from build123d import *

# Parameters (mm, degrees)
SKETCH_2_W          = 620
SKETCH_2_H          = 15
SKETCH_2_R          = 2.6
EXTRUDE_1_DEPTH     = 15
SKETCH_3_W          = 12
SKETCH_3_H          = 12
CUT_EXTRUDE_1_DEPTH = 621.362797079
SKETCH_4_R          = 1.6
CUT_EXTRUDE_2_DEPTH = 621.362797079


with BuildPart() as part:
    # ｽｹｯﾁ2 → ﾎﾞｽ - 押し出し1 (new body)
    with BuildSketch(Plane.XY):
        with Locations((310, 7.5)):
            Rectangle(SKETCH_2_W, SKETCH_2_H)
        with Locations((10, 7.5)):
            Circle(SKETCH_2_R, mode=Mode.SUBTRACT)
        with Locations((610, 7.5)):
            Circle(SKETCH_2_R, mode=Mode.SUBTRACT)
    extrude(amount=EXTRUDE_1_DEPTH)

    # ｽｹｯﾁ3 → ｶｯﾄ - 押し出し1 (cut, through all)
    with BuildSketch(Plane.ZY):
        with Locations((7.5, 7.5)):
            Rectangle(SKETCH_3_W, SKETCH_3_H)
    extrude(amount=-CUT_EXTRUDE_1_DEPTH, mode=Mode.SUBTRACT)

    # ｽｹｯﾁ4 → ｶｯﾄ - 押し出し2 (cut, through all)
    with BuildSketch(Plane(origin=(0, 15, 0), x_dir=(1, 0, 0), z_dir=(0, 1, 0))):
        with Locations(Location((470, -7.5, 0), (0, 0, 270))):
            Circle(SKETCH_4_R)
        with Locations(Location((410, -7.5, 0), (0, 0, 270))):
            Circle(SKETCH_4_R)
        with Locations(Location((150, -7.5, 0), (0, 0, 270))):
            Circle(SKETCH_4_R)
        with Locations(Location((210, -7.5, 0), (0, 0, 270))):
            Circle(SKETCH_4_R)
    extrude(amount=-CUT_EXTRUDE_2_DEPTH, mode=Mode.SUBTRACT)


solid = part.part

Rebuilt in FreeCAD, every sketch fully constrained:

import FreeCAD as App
import Part
import Sketcher

doc = App.newDocument("Part")
body = doc.addObject("PartDesign::Body", "Body")

# Sketch on XY plane
sketch1 = body.newObject("Sketcher::SketchObject", "Sketch")
sketch1.AttachmentSupport = (doc.getObject("XY_Plane"), [""])
sketch1.MapMode = "FlatFace"
sketch1.addGeometry([
    Part.LineSegment(App.Vector(0, 15, 0), App.Vector(0, 0, 0)),  # 0
    Part.LineSegment(App.Vector(0, 0, 0), App.Vector(620, 0, 0)),  # 1
    Part.LineSegment(App.Vector(620, 0, 0), App.Vector(620, 15, 0)),  # 2
    Part.LineSegment(App.Vector(620, 15, 0), App.Vector(0, 15, 0)),  # 3
    Part.Circle(App.Vector(10, 7.5, 0), App.Vector(0, 0, 1), 2.6),  # 4
    Part.Circle(App.Vector(610, 7.5, 0), App.Vector(0, 0, 1), 2.6),  # 5
], False)
sketch1.addConstraint([
    Sketcher.Constraint("Coincident", 0, 2, 1, 1),
    Sketcher.Constraint("Coincident", 1, 2, 2, 1),
    Sketcher.Constraint("Coincident", 2, 2, 3, 1),
    Sketcher.Constraint("Coincident", 3, 2, 0, 1),
    Sketcher.Constraint("Vertical", 0),
    Sketcher.Constraint("Horizontal", 1),
    Sketcher.Constraint("Vertical", 2),
    Sketcher.Constraint("Horizontal", 3),
    Sketcher.Constraint("Coincident", 0, 2, -1, 1),
    Sketcher.Constraint("Equal", 4, 5),
    Sketcher.Constraint("Horizontal", 4, 3, 5, 3),
    Sketcher.Constraint("Diameter", 4, 5.2),
    Sketcher.Constraint("DistanceX", 1, 1, 1, 2, 620.0),
    Sketcher.Constraint("DistanceY", 0, 2, 0, 1, 15.0),
    Sketcher.Constraint("DistanceX", -1, 1, 4, 3, 10.0),
    Sketcher.Constraint("DistanceX", -1, 1, 5, 3, 610.0),
    Sketcher.Constraint("DistanceY", -1, 1, 4, 3, 7.5),
])
pad1 = body.newObject("PartDesign::Pad", "Pad")
pad1.Profile = sketch1
pad1.Length = 15

# Sketch on YZ plane
sketch2 = body.newObject("Sketcher::SketchObject", "Sketch001")
sketch2.AttachmentSupport = (doc.getObject("YZ_Plane"), [""])
sketch2.MapMode = "FlatFace"
sketch2.addGeometry([
    Part.LineSegment(App.Vector(14, 2, 0), App.Vector(2, 2, 0)),
    Part.LineSegment(App.Vector(2, 2, 0), App.Vector(2, 14, 0)),
    Part.LineSegment(App.Vector(2, 14, 0), App.Vector(14, 14, 0)),
    Part.LineSegment(App.Vector(14, 14, 0), App.Vector(14, 2, 0)),
], False)
sketch2.addConstraint([
    Sketcher.Constraint("Coincident", 0, 2, 1, 1),
    Sketcher.Constraint("Coincident", 1, 2, 2, 1),
    Sketcher.Constraint("Coincident", 2, 2, 3, 1),
    Sketcher.Constraint("Coincident", 3, 2, 0, 1),
    Sketcher.Constraint("Horizontal", 0),
    Sketcher.Constraint("Vertical", 1),
    Sketcher.Constraint("Horizontal", 2),
    Sketcher.Constraint("Vertical", 3),
    Sketcher.Constraint("Equal", 2, 1),
    Sketcher.Constraint("DistanceX", 0, 2, 0, 1, 12.0),
    Sketcher.Constraint("DistanceX", -1, 1, 0, 2, 1.5),
    Sketcher.Constraint("DistanceY", -1, 1, 0, 2, 1.5),
])
pocket1 = body.newObject("PartDesign::Pocket", "Pocket")
pocket1.Profile = sketch2
pocket1.Type = "ThroughAll"
pocket1.Reversed = True

# Sketch on XZ plane
sketch3 = body.newObject("Sketcher::SketchObject", "Sketch002")
sketch3.AttachmentSupport = (doc.getObject("XZ_Plane"), [""])
sketch3.MapMode = "FlatFace"
sketch3.AttachmentOffset = App.Placement(App.Vector(0, 0, -15), App.Rotation())
sketch3.addGeometry([
    Part.Circle(App.Vector(470, 7.5, 0), App.Vector(0, 0, 1), 1.6),
    Part.Circle(App.Vector(410, 7.5, 0), App.Vector(0, 0, 1), 1.6),
    Part.Circle(App.Vector(150, 7.5, 0), App.Vector(0, 0, 1), 1.6),
    Part.Circle(App.Vector(210, 7.5, 0), App.Vector(0, 0, 1), 1.6),
], False)
sketch3.addConstraint([
    Sketcher.Constraint("Equal", 0, 1),
    Sketcher.Constraint("Equal", 1, 2),
    Sketcher.Constraint("Equal", 2, 3),
    Sketcher.Constraint("Horizontal", 0, 3, 1, 3),
    Sketcher.Constraint("Horizontal", 1, 3, 2, 3),
    Sketcher.Constraint("Horizontal", 2, 3, 3, 3),
    Sketcher.Constraint("Diameter", 0, 3.2),
    Sketcher.Constraint("DistanceX", -1, 1, 0, 3, 470.0),
    Sketcher.Constraint("DistanceX", -1, 1, 1, 3, 410.0),
    Sketcher.Constraint("DistanceX", -1, 1, 2, 3, 150.0),
    Sketcher.Constraint("DistanceX", -1, 1, 3, 3, 210.0),
    Sketcher.Constraint("DistanceY", -1, 1, 0, 3, 7.5),
])
pocket2 = body.newObject("PartDesign::Pocket", "Pocket001")
pocket2.Profile = sketch3
pocket2.Type = "ThroughAll"
pocket2.Reversed = True

doc.recompute()
